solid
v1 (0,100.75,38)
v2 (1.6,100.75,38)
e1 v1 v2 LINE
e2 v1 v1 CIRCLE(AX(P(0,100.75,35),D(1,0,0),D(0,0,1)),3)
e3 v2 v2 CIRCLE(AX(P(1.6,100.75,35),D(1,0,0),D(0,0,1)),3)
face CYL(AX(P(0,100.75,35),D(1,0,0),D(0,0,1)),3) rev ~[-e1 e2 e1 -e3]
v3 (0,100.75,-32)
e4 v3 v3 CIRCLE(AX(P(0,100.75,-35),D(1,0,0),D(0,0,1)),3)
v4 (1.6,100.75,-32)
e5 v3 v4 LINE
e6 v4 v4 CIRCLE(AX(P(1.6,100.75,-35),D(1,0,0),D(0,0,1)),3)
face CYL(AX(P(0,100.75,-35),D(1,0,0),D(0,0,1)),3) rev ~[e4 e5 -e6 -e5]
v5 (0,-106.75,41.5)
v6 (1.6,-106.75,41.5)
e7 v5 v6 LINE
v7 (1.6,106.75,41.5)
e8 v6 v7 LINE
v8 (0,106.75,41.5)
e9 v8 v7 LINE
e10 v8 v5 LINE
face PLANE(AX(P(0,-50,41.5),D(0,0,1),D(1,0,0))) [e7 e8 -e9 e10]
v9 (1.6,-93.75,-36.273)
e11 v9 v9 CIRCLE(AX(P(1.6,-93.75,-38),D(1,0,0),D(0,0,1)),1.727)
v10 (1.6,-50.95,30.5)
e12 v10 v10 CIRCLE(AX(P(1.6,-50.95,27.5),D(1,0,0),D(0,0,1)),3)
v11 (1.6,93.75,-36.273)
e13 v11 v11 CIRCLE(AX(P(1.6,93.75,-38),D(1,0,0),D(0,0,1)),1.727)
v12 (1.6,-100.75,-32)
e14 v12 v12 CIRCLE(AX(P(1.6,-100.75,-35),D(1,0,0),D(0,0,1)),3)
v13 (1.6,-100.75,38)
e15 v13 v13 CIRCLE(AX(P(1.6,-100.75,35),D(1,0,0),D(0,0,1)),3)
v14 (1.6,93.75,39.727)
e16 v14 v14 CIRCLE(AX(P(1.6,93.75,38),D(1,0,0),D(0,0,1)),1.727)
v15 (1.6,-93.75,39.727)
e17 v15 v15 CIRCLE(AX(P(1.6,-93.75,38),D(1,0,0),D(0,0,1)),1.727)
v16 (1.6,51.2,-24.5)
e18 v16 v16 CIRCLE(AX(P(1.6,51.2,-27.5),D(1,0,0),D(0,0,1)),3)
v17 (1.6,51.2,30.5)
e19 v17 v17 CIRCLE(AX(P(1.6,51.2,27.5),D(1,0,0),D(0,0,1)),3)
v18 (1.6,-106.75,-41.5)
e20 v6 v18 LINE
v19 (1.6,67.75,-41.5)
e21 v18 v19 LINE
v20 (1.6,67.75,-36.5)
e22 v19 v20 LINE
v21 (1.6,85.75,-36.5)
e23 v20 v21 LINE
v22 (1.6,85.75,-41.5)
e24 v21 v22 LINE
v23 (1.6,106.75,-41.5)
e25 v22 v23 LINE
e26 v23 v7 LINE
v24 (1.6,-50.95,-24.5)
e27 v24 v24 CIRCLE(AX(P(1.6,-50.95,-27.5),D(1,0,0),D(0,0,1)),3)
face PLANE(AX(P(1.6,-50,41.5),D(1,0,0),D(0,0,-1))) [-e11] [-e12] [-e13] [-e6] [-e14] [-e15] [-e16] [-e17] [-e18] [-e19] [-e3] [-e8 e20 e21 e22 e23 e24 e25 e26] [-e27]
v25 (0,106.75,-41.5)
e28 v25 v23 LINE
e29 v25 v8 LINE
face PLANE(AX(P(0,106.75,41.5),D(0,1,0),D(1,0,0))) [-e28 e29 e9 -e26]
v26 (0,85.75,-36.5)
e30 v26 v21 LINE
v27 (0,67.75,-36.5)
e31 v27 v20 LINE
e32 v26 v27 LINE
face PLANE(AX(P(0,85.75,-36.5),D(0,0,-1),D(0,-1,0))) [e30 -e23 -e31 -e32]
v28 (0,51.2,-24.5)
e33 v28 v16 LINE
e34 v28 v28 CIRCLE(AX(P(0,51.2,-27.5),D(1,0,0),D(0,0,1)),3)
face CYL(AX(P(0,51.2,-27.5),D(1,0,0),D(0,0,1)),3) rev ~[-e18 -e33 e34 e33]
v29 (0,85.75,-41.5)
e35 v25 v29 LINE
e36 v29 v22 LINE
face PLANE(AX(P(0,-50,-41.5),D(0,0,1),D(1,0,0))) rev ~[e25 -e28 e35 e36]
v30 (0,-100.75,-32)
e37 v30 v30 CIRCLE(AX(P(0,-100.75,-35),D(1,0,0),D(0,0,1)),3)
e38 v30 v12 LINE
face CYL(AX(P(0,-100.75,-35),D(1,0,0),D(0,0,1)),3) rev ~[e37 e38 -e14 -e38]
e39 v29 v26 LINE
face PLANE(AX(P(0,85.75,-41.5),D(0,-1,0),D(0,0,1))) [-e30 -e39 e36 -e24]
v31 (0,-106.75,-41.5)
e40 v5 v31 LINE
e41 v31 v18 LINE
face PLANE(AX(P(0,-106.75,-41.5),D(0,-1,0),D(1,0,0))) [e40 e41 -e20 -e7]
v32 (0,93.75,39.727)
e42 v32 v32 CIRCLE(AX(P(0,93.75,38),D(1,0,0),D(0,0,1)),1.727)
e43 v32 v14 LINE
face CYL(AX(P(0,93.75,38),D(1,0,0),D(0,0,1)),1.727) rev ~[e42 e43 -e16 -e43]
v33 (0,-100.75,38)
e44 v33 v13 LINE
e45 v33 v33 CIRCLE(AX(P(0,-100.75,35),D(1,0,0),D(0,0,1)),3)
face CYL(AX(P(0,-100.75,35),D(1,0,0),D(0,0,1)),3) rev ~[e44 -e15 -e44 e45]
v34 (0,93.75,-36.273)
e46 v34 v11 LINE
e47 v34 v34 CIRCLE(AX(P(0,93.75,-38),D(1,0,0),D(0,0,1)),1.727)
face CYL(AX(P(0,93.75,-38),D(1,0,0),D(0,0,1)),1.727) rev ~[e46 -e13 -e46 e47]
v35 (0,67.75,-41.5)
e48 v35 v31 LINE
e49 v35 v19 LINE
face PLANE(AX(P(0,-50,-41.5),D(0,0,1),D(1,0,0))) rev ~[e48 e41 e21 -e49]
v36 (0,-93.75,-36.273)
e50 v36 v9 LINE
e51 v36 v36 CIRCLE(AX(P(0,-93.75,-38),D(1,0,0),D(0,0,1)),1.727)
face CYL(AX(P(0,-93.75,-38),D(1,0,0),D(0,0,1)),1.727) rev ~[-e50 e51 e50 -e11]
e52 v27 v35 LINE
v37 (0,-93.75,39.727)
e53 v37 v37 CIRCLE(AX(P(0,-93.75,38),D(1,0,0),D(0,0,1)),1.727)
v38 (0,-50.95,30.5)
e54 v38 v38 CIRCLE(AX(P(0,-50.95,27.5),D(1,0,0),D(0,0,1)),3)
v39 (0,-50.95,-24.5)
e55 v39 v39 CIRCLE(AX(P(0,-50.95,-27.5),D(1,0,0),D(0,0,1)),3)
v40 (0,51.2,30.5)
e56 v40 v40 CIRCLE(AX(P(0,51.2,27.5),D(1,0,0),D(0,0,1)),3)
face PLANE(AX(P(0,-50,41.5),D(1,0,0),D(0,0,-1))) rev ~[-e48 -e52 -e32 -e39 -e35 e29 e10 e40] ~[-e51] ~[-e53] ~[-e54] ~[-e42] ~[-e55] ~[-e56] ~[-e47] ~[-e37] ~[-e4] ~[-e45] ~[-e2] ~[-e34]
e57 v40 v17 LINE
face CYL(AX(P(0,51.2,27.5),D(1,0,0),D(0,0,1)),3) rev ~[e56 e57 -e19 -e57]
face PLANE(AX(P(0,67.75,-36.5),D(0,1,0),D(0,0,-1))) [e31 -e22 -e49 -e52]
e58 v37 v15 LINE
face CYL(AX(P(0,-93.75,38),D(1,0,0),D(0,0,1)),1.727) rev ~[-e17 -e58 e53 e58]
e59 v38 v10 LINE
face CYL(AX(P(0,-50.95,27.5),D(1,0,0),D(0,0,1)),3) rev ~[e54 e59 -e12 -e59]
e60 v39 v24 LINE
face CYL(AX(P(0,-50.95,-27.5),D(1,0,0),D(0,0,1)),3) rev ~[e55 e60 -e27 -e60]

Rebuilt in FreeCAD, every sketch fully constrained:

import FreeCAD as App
import Part
import Sketcher

V = App.Vector


def add_polygon(sketch, points):
    """Adds a closed chain of lines whose ends are joined by coincident constraints."""
    first, n = sketch.GeometryCount, len(points)
    for a, b in zip(points, points[1:] + points[:1]):
        sketch.addGeometry(Part.LineSegment(App.Vector(*a, 0), App.Vector(*b, 0)), False)
    for i in range(n):
        sketch.addConstraint(Sketcher.Constraint("Coincident", first + i, 2, first + (i + 1) % n, 1))

doc = App.newDocument("Part")
body = doc.addObject("PartDesign::Body", "Body")

# Sketch on YZ plane
sketch1 = doc.addObject("Sketcher::SketchObject", "Sketch")
body.addObject(sketch1)
sketch1.AttachmentSupport = (doc.YZ_Plane, [""])
sketch1.MapMode = "FlatFace"
add_polygon(sketch1, [(50, -42), (50, 42), (-50, 42), (-50, -42)])  # lines 0-3
sketch1.addConstraint(Sketcher.Constraint("Vertical", 0))
sketch1.addConstraint(Sketcher.Constraint("Horizontal", 1))
sketch1.addConstraint(Sketcher.Constraint("Vertical", 2))
sketch1.addConstraint(Sketcher.Constraint("Horizontal", 3))
sketch1.addConstraint(Sketcher.Constraint("Symmetric", 0, 2, 2, 2, -1, 1))
sketch1.addConstraint(Sketcher.Constraint("DistanceX", 1, 2, 1, 1, 100.0))
sketch1.addConstraint(Sketcher.Constraint("DistanceY", 0, 1, 0, 2, 83.0))
pad1 = doc.addObject("PartDesign::Pad", "Pad")
body.addObject(pad1)
pad1.Profile = sketch1
pad1.Length = 1.6

# Sketch on XZ plane
sketch2 = doc.addObject("Sketcher::SketchObject", "Sketch001")
body.addObject(sketch2)
sketch2.AttachmentSupport = (doc.XZ_Plane, [""])
sketch2.MapMode = "FlatFace"
sketch2.AttachmentOffset = App.Placement(V(0, 0, -50), App.Rotation())
add_polygon(sketch2, [(1.6, -41.5), (0, -41.5), (0, 41.5), (1.6, 41.5)])  # lines 0-3
sketch2.addConstraint(Sketcher.Constraint("Horizontal", 0))
sketch2.addConstraint(Sketcher.Constraint("Vertical", 1))
sketch2.addConstraint(Sketcher.Constraint("Horizontal", 2))
sketch2.addConstraint(Sketcher.Constraint("Vertical", 3))
sketch2.addConstraint(Sketcher.Constraint("Symmetric", 0, 2, 1, 2, -1, 1))
sketch2.addConstraint(Sketcher.Constraint("DistanceY", 1, 1, 1, 2, 83.0))
sketch2.addConstraint(Sketcher.Constraint("DistanceX", 0, 2, 0, 1, 1.6))
pad2 = doc.addObject("PartDesign::Pad", "Pad001")
body.addObject(pad2)
pad2.Profile = sketch2
pad2.Length = 56.75
pad2.Reversed = True

# Sketch on XZ plane
sketch3 = doc.addObject("Sketcher::SketchObject", "Sketch002")
body.addObject(sketch3)
sketch3.AttachmentSupport = (doc.XZ_Plane, [""])
sketch3.MapMode = "FlatFace"
sketch3.AttachmentOffset = App.Placement(V(0, 0, 50), App.Rotation())
add_polygon(sketch3, [(1.6, 41.5), (0, 41.5), (0, -41.5), (1.6, -41.5)])  # lines 0-3
sketch3.addConstraint(Sketcher.Constraint("Horizontal", 0))
sketch3.addConstraint(Sketcher.Constraint("Vertical", 1))
sketch3.addConstraint(Sketcher.Constraint("Horizontal", 2))
sketch3.addConstraint(Sketcher.Constraint("Vertical", 3))
sketch3.addConstraint(Sketcher.Constraint("Symmetric", 0, 2, 1, 2, -1, 1))
sketch3.addConstraint(Sketcher.Constraint("DistanceY", 1, 2, 1, 1, 83.0))
sketch3.addConstraint(Sketcher.Constraint("DistanceX", 0, 2, 0, 1, 1.6))
pad3 = doc.addObject("PartDesign::Pad", "Pad002")
body.addObject(pad3)
pad3.Profile = sketch3
pad3.Length = 56.75

# Sketch on YZ plane
sketch4 = doc.addObject("Sketcher::SketchObject", "Sketch003")
body.addObject(sketch4)
sketch4.AttachmentSupport = (doc.YZ_Plane, [""])
sketch4.MapMode = "FlatFace"
sketch4.addGeometry(Part.Circle(V(-100.8, 35, 0), V(0, 0, 1), 3), False)
sketch4.addGeometry(Part.Circle(V(-100.8, -35, 0), V(0, 0, 1), 3), False)
sketch4.addGeometry(Part.Circle(V(100.8, 35, 0), V(0, 0, 1), 3), False)
sketch4.addGeometry(Part.Circle(V(100.8, -35, 0), V(0, 0, 1), 3), False)
sketch4.addConstraint(Sketcher.Constraint("Equal", 0, 1))
sketch4.addConstraint(Sketcher.Constraint("Equal", 1, 2))
sketch4.addConstraint(Sketcher.Constraint("Equal", 2, 3))
sketch4.addConstraint(Sketcher.Constraint("Symmetric", 1, 3, 2, 3, -1, 1))
sketch4.addConstraint(Sketcher.Constraint("Symmetric", 0, 3, 3, 3, -1, 1))
sketch4.addConstraint(Sketcher.Constraint("Symmetric", 0, 3, 2, 3, -2))
sketch4.addConstraint(Sketcher.Constraint("Diameter", 0, 6.0))
sketch4.addConstraint(Sketcher.Constraint("DistanceY", -1, 1, 0, 3, 35.0))
sketch4.addConstraint(Sketcher.Constraint("DistanceX", 0, 3, 2, 3, 201.5))
doc.recompute()
hole = doc.addObject("PartDesign::Hole", "Hole")
body.addObject(hole)
hole.Profile = sketch4
hole.ThreadType = "None"
hole.Diameter = 6
hole.DepthType = "ThroughAll"
hole.Reversed = True

# Sketch on YZ plane
sketch5 = doc.addObject("Sketcher::SketchObject", "Sketch004")
body.addObject(sketch5)
sketch5.AttachmentSupport = (doc.YZ_Plane, [""])
sketch5.MapMode = "FlatFace"
sketch5.addGeometry(Part.Circle(V(72, -39, 0), V(0, 0, 1), 1.3), False)
sketch5.addGeometry(Part.Circle(V(81.5, -39, 0), V(0, 0, 1), 1.3), False)
sketch5.addConstraint(Sketcher.Constraint("Equal", 0, 1))
sketch5.addConstraint(Sketcher.Constraint("Horizontal", 0, 3, 1, 3))
sketch5.addConstraint(Sketcher.Constraint("Diameter", 0, 2.6))
sketch5.addConstraint(Sketcher.Constraint("DistanceX", -1, 1, 0, 3, 72.0))
sketch5.addConstraint(Sketcher.Constraint("DistanceY", 0, 3, -1, 1, 39.0))
sketch5.addConstraint(Sketcher.Constraint("DistanceX", -1, 1, 1, 3, 81.5))
doc.recompute()
hole2 = doc.addObject("PartDesign::Hole", "Hole001")
body.addObject(hole2)
hole2.Profile = sketch5
hole2.ThreadType = "None"
hole2.Diameter = 2.6
hole2.DepthType = "ThroughAll"
hole2.Reversed = True

# Sketch on YZ plane
sketch6 = doc.addObject("Sketcher::SketchObject", "Sketch005")
body.addObject(sketch6)
sketch6.AttachmentSupport = (doc.YZ_Plane, [""])
sketch6.MapMode = "FlatFace"
add_polygon(sketch6, [(86, -36), (86, -42), (68, -42), (68, -36)])  # lines 0-3
sketch6.addConstraint(Sketcher.Constraint("Vertical", 0))
sketch6.addConstraint(Sketcher.Constraint("Horizontal", 1))
sketch6.addConstraint(Sketcher.Constraint("Vertical", 2))
sketch6.addConstraint(Sketcher.Constraint("Horizontal", 3))
sketch6.addConstraint(Sketcher.Constraint("DistanceX", 1, 2, 1, 1, 18.0))
sketch6.addConstraint(Sketcher.Constraint("DistanceY", 0, 2, 0, 1, 5.0))
sketch6.addConstraint(Sketcher.Constraint("DistanceY", 0, 2, -1, 1, 41.5))
sketch6.addConstraint(Sketcher.Constraint("DistanceX", -1, 1, 0, 2, 85.75))
pocket1 = doc.addObject("PartDesign::Pocket", "Pocket")
body.addObject(pocket1)
pocket1.Profile = sketch6
pocket1.Type = "ThroughAll"
pocket1.Reversed = True

# Sketch on YZ plane
sketch7 = doc.addObject("Sketcher::SketchObject", "Sketch006")
body.addObject(sketch7)
sketch7.AttachmentSupport = (doc.YZ_Plane, [""])
sketch7.MapMode = "FlatFace"
sketch7.addGeometry(Part.Circle(V(93.8, 38, 0), V(0, 0, 1), 1.7), False)
sketch7.addGeometry(Part.Circle(V(93.8, -38, 0), V(0, 0, 1), 1.7), False)
sketch7.addGeometry(Part.Circle(V(-93.8, 38, 0), V(0, 0, 1), 1.7), False)
sketch7.addGeometry(Part.Circle(V(-93.8, -38, 0), V(0, 0, 1), 1.7), False)
sketch7.addConstraint(Sketcher.Constraint("Equal", 0, 1))
sketch7.addConstraint(Sketcher.Constraint("Equal", 1, 2))
sketch7.addConstraint(Sketcher.Constraint("Equal", 2, 3))
sketch7.addConstraint(Sketcher.Constraint("Symmetric", 1, 3, 2, 3, -1, 1))
sketch7.addConstraint(Sketcher.Constraint("Symmetric", 0, 3, 3, 3, -1, 1))
sketch7.addConstraint(Sketcher.Constraint("Symmetric", 0, 3, 2, 3, -2))
sketch7.addConstraint(Sketcher.Constraint("Diameter", 0, 3.454))
sketch7.addConstraint(Sketcher.Constraint("DistanceY", -1, 1, 0, 3, 38.0))
sketch7.addConstraint(Sketcher.Constraint("DistanceX", 2, 3, 0, 3, 187.5))
doc.recompute()
hole3 = doc.addObject("PartDesign::Hole", "Hole002")
body.addObject(hole3)
hole3.Profile = sketch7
hole3.ThreadType = "None"
hole3.Diameter = 3.454
hole3.DepthType = "ThroughAll"
hole3.Reversed = True

# Sketch on YZ plane
sketch8 = doc.addObject("Sketcher::SketchObject", "Sketch007")
body.addObject(sketch8)
sketch8.AttachmentSupport = (doc.YZ_Plane, [""])
sketch8.MapMode = "FlatFace"
sketch8.AttachmentOffset = App.Placement(V(0, 0, 1.6), App.Rotation())
add_polygon(sketch8, [(5, 32), (-8, 32), (-8, -32), (5, -32)])  # lines 0-3
sketch8.addConstraint(Sketcher.Constraint("Horizontal", 0))
sketch8.addConstraint(Sketcher.Constraint("Vertical", 1))
sketch8.addConstraint(Sketcher.Constraint("Horizontal", 2))
sketch8.addConstraint(Sketcher.Constraint("Vertical", 3))
sketch8.addConstraint(Sketcher.Constraint("DistanceY", 1, 2, 1, 1, 65.0))
sketch8.addConstraint(Sketcher.Constraint("DistanceX", 0, 2, 0, 1, 12.5))
sketch8.addConstraint(Sketcher.Constraint("DistanceY", -1, 1, 0, 2, 32.5))
sketch8.addConstraint(Sketcher.Constraint("DistanceX", 0, 2, -1, 1, 7.75))
pocket2 = doc.addObject("PartDesign::Pocket", "Pocket001")
body.addObject(pocket2)
pocket2.Profile = sketch8
pocket2.Length = 10

# Sketch on YZ plane
sketch9 = doc.addObject("Sketcher::SketchObject", "Sketch008")
body.addObject(sketch9)
sketch9.AttachmentSupport = (doc.YZ_Plane, [""])
sketch9.MapMode = "FlatFace"
sketch9.AttachmentOffset = App.Placement(V(0, 0, 1.6), App.Rotation())
add_polygon(sketch9, [(5, 32), (-8, 32), (-8, -32), (5, -32)])  # lines 0-3
sketch9.addConstraint(Sketcher.Constraint("Horizontal", 0))
sketch9.addConstraint(Sketcher.Constraint("Vertical", 1))
sketch9.addConstraint(Sketcher.Constraint("Horizontal", 2))
sketch9.addConstraint(Sketcher.Constraint("Vertical", 3))
sketch9.addConstraint(Sketcher.Constraint("DistanceY", 1, 2, 1, 1, 65.0))
sketch9.addConstraint(Sketcher.Constraint("DistanceX", 0, 2, 0, 1, 12.5))
sketch9.addConstraint(Sketcher.Constraint("DistanceY", -1, 1, 0, 2, 32.5))
sketch9.addConstraint(Sketcher.Constraint("DistanceX", 0, 2, -1, 1, 7.75))
pad4 = doc.addObject("PartDesign::Pad", "Pad003")
body.addObject(pad4)
pad4.Profile = sketch9
pad4.Length = 1.6
pad4.Reversed = True

# Sketch on YZ plane
sketch10 = doc.addObject("Sketcher::SketchObject", "Sketch009")
body.addObject(sketch10)
sketch10.AttachmentSupport = (doc.YZ_Plane, [""])
sketch10.MapMode = "FlatFace"
sketch10.addGeometry(Part.Circle(V(-51, 27.5, 0), V(0, 0, 1), 3), False)
sketch10.addGeometry(Part.Circle(V(-51, -27.5, 0), V(0, 0, 1), 3), False)
sketch10.addGeometry(Part.Circle(V(51.2, 27.5, 0), V(0, 0, 1), 3), False)
sketch10.addGeometry(Part.Circle(V(51.2, -27.5, 0), V(0, 0, 1), 3), False)
sketch10.addConstraint(Sketcher.Constraint("Equal", 0, 1))
sketch10.addConstraint(Sketcher.Constraint("Equal", 1, 2))
sketch10.addConstraint(Sketcher.Constraint("Equal", 2, 3))
sketch10.addConstraint(Sketcher.Constraint("Symmetric", 0, 3, 1, 3, -1))
sketch10.addConstraint(Sketcher.Constraint("Symmetric", 2, 3, 3, 3, -1))
sketch10.addConstraint(Sketcher.Constraint("Horizontal", 0, 3, 2, 3))
sketch10.addConstraint(Sketcher.Constraint("Diameter", 0, 6.0))
sketch10.addConstraint(Sketcher.Constraint("DistanceY", 1, 3, 0, 3, 55.0))
sketch10.addConstraint(Sketcher.Constraint("DistanceX", -1, 1, 2, 3, 51.2))
sketch10.addConstraint(Sketcher.Constraint("DistanceX", 0, 3, -1, 1, 50.95))
doc.recompute()
hole4 = doc.addObject("PartDesign::Hole", "Hole003")
body.addObject(hole4)
hole4.Profile = sketch10
hole4.ThreadType = "None"
hole4.Diameter = 6
hole4.DepthType = "ThroughAll"
hole4.Reversed = True

doc.recompute()
